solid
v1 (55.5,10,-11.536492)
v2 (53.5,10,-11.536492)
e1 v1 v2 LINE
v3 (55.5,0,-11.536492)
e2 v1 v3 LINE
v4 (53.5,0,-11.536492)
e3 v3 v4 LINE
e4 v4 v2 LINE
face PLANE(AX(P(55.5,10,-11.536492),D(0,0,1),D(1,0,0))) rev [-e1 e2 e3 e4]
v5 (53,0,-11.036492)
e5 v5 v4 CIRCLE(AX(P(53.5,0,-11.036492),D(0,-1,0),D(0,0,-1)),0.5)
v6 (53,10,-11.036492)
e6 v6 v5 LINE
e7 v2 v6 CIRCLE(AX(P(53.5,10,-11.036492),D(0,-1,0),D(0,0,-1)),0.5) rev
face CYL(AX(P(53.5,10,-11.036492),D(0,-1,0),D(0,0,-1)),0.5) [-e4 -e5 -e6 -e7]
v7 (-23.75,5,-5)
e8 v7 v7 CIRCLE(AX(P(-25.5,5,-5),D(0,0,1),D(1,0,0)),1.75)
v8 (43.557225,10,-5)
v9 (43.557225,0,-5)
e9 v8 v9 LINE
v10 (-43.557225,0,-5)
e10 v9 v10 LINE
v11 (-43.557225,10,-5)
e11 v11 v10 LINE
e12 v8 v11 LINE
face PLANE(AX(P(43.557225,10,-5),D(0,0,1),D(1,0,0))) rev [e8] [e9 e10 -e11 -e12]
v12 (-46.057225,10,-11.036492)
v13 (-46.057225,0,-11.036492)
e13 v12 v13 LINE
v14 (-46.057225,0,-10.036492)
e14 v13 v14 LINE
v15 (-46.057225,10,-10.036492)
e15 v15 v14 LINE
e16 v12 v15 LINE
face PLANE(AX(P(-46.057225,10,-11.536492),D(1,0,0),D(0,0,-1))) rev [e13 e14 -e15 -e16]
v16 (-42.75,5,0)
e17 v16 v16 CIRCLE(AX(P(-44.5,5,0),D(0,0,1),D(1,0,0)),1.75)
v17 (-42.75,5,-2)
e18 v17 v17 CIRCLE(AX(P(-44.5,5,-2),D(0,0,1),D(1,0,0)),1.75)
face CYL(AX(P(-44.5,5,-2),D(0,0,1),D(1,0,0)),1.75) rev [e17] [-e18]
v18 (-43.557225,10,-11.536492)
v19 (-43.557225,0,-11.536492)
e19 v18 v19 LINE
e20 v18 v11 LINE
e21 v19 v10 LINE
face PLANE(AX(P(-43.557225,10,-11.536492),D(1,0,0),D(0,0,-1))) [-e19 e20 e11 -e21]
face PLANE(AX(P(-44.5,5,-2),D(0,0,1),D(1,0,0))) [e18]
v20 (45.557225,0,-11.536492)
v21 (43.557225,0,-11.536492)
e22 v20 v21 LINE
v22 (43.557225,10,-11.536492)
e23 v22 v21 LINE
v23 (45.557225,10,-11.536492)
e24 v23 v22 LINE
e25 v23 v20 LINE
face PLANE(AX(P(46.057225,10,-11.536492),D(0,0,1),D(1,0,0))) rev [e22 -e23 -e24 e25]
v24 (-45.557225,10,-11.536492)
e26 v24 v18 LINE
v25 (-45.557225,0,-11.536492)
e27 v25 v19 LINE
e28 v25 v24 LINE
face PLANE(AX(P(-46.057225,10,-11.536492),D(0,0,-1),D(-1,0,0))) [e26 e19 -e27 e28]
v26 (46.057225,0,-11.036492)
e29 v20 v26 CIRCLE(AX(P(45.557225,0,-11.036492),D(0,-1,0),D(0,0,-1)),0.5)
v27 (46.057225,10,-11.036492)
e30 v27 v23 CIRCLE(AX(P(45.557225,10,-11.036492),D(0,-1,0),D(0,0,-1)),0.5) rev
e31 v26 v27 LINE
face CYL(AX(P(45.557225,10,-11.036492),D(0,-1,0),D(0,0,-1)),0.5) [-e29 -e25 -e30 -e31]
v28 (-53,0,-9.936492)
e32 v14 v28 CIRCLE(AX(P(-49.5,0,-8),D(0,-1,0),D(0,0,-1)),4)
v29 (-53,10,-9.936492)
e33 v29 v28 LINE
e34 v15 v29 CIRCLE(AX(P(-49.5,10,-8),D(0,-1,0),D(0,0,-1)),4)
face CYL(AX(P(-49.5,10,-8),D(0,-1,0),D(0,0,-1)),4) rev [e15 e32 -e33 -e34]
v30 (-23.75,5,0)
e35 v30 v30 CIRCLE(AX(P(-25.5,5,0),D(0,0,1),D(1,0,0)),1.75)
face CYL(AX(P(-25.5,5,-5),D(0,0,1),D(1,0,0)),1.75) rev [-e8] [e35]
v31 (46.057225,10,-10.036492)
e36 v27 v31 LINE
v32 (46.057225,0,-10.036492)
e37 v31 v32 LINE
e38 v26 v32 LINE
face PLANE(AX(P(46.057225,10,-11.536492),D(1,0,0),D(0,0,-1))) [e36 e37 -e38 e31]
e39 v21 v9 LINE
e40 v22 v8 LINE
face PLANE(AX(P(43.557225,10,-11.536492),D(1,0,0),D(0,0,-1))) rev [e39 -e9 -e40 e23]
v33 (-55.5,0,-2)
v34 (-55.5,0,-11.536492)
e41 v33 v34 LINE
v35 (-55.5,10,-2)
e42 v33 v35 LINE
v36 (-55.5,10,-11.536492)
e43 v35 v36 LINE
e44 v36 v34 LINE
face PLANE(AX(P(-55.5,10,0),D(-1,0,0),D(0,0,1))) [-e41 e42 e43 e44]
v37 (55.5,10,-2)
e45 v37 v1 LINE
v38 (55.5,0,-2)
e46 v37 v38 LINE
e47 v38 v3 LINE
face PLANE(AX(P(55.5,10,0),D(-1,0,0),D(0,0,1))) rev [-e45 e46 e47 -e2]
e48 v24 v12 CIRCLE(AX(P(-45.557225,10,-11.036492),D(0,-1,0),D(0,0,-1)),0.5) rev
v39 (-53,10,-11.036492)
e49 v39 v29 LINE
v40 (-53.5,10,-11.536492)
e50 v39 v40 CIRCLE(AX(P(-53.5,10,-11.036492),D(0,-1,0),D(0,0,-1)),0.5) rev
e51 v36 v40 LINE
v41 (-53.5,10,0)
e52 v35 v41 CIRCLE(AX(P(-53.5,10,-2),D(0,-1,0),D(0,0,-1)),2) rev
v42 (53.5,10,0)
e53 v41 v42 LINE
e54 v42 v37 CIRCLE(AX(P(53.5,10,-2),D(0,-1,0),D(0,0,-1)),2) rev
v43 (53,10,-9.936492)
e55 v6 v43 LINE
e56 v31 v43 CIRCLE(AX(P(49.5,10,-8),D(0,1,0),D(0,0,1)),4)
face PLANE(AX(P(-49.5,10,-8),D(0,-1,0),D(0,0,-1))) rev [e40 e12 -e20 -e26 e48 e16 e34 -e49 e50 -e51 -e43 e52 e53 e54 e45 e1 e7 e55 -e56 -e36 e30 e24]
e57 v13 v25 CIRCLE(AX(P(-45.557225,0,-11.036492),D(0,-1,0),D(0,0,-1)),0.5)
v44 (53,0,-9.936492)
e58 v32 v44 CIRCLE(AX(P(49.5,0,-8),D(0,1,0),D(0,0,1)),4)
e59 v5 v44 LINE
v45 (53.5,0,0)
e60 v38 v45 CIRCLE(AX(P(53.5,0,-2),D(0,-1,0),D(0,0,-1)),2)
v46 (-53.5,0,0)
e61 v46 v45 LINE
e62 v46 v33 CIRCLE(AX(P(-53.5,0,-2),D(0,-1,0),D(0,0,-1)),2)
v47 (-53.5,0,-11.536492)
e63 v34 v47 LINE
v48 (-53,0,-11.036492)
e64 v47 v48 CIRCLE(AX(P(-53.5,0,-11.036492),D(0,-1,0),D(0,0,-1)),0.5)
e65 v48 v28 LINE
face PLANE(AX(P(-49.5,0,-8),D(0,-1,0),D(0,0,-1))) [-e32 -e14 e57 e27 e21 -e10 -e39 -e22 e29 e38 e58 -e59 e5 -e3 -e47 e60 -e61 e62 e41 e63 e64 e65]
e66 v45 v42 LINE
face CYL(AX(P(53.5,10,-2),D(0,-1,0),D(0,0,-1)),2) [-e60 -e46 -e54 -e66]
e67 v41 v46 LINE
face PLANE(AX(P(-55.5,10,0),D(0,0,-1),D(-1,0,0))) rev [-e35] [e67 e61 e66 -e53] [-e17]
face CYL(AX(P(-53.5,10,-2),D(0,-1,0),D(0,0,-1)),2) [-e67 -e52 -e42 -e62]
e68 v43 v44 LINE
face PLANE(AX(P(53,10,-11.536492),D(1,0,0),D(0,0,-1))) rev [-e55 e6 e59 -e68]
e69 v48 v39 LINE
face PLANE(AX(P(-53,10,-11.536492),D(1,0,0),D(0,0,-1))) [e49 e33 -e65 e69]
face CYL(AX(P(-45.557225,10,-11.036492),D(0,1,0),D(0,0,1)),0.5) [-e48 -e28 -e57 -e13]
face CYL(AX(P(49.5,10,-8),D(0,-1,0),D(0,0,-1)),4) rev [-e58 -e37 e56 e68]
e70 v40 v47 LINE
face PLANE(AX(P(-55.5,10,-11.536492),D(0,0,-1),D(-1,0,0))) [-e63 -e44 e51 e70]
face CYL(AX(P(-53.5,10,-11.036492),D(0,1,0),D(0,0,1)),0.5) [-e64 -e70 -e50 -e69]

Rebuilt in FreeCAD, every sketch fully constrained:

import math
import FreeCAD as App
import Part
import Sketcher

V = App.Vector


def edges_at(feature, points):
    """Names of the edges that pass closest to the given points."""
    edges = feature.Shape.Edges
    near = lambda p: min(range(len(edges)), key=lambda i: edges[i].distToShape(Part.Vertex(*p))[0])
    return sorted({f"Edge{near(p) + 1}" for p in points})

doc = App.newDocument("Part")
body = doc.addObject("PartDesign::Body", "Body")

sketch1 = body.newObject("Sketcher::SketchObject", "Sketch")
sketch1.AttachmentSupport = (doc.getObject("XZ_Plane"), [""])
sketch1.MapMode = "FlatFace"
sketch1.addGeometry([
    Part.LineSegment(V(-55.5, 0, 0), V(55.5, 0, 0)),
    Part.LineSegment(V(55.5, 0, 0), V(55.5, -11.5, 0)),
    Part.LineSegment(V(55.5, -11.5, 0), V(53, -11.5, 0)),
    Part.LineSegment(V(53, -11.5, 0), V(53, -9.9, 0)),
    Part.ArcOfCircle(Part.Circle(V(49.5, -8, 0), V(0, 0, 1), 4), math.radians(-29), math.radians(211)),
    Part.LineSegment(V(46.1, -10, 0), V(46.1, -11.5, 0)),
    Part.LineSegment(V(46.1, -11.5, 0), V(43.6, -11.5, 0)),
    Part.LineSegment(V(43.6, -11.5, 0), V(43.6, -5, 0)),
    Part.LineSegment(V(43.6, -5, 0), V(-43.6, -5, 0)),
    Part.LineSegment(V(-43.6, -5, 0), V(-43.6, -11.5, 0)),
    Part.LineSegment(V(-43.6, -11.5, 0), V(-46.1, -11.5, 0)),
    Part.LineSegment(V(-46.1, -11.5, 0), V(-46.1, -10, 0)),
    Part.ArcOfCircle(Part.Circle(V(-49.5, -8, 0), V(0, 0, 1), 4), math.radians(-31), math.radians(209)),
    Part.LineSegment(V(-53, -9.9, 0), V(-53, -11.5, 0)),
    Part.LineSegment(V(-53, -11.5, 0), V(-55.5, -11.5, 0)),
    Part.LineSegment(V(-55.5, -11.5, 0), V(-55.5, 0, 0)),
], False)
sketch1.addConstraint([
    Sketcher.Constraint("Coincident", 0, 2, 1, 1),
    Sketcher.Constraint("Coincident", 1, 2, 2, 1),
    Sketcher.Constraint("Coincident", 2, 2, 3, 1),
    Sketcher.Constraint("Coincident", 3, 2, 4, 1),
    Sketcher.Constraint("Coincident", 4, 2, 5, 1),
    Sketcher.Constraint("Coincident", 5, 2, 6, 1),
    Sketcher.Constraint("Coincident", 6, 2, 7, 1),
    Sketcher.Constraint("Coincident", 7, 2, 8, 1),
    Sketcher.Constraint("Coincident", 8, 2, 9, 1),
    Sketcher.Constraint("Coincident", 9, 2, 10, 1),
    Sketcher.Constraint("Coincident", 10, 2, 11, 1),
    Sketcher.Constraint("Coincident", 11, 2, 12, 1),
    Sketcher.Constraint("Coincident", 12, 2, 13, 1),
    Sketcher.Constraint("Coincident", 13, 2, 14, 1),
    Sketcher.Constraint("Coincident", 14, 2, 15, 1),
    Sketcher.Constraint("Coincident", 15, 2, 0, 1),
    Sketcher.Constraint("Horizontal", 0),
    Sketcher.Constraint("Vertical", 1),
    Sketcher.Constraint("Horizontal", 2),
    Sketcher.Constraint("Vertical", 3),
    Sketcher.Constraint("Vertical", 5),
    Sketcher.Constraint("Horizontal", 6),
    Sketcher.Constraint("Vertical", 7),
    Sketcher.Constraint("Horizontal", 8),
    Sketcher.Constraint("Vertical", 9),
    Sketcher.Constraint("Horizontal", 10),
    Sketcher.Constraint("Vertical", 11),
    Sketcher.Constraint("Vertical", 13),
    Sketcher.Constraint("Horizontal", 14),
    Sketcher.Constraint("Vertical", 15),
    Sketcher.Constraint("Equal", 4, 12),
    Sketcher.Constraint("Symmetric", 0, 2, 15, 2, -1, 1),
    Sketcher.Constraint("Symmetric", 4, 3, 12, 3, -2),
    Sketcher.Constraint("Symmetric", 6, 2, 9, 2, -2),
    Sketcher.Constraint("Symmetric", 2, 2, 13, 2, -2),
    Sketcher.Constraint("Horizontal", 2, 2, 5, 2),
    Sketcher.Constraint("Horizontal", 4, 2, 11, 2),
    Sketcher.Constraint("Equal", 2, 6),
    Sketcher.Constraint("Radius", 4, 4.0),
    Sketcher.Constraint("DistanceX", 0, 1, 0, 2, 111.0),
    Sketcher.Constraint("DistanceX", 2, 2, 2, 1, 2.5),
    Sketcher.Constraint("DistanceY", 3, 1, 3, 2, 1.6),
    Sketcher.Constraint("DistanceY", 5, 2, 5, 1, 1.5),
    Sketcher.Constraint("DistanceY", 4, 3, -1, 1, 8.0),
    Sketcher.Constraint("DistanceY", 7, 2, -1, 1, 5.0),
    Sketcher.Constraint("DistanceX", 12, 3, 4, 3, 99.0),
])
pad1 = body.newObject("PartDesign::Pad", "Pad")
pad1.Profile = sketch1
pad1.Length = 10
pad1.Reversed = True
doc.recompute()

fillet = body.newObject("PartDesign::Fillet", "Fillet")
fillet.Base = (pad1, edges_at(pad1, [(55.5, 5, 0)]))
fillet.Radius = 2
doc.recompute()

fillet2 = body.newObject("PartDesign::Fillet", "Fillet001")
fillet2.Base = (fillet, edges_at(fillet, [(-55.5, 5, 0)]))
fillet2.Radius = 2
doc.recompute()

fillet3 = body.newObject("PartDesign::Fillet", "Fillet002")
fillet3.Base = (fillet2, edges_at(fillet2, [(46.057, 5, -11.536)]))
fillet3.Radius = 0.5
doc.recompute()

fillet4 = body.newObject("PartDesign::Fillet", "Fillet003")
fillet4.Base = (fillet3, edges_at(fillet3, [(53, 5, -11.536)]))
fillet4.Radius = 0.5
doc.recompute()

fillet5 = body.newObject("PartDesign::Fillet", "Fillet004")
fillet5.Base = (fillet4, edges_at(fillet4, [(-53, 5, -11.536)]))
fillet5.Radius = 0.5
doc.recompute()

fillet6 = body.newObject("PartDesign::Fillet", "Fillet005")
fillet6.Base = (fillet5, edges_at(fillet5, [(-46.057, 5, -11.536)]))
fillet6.Radius = 0.5

sketch2 = body.newObject("Sketcher::SketchObject", "Sketch001")
sketch2.AttachmentSupport = (doc.getObject("XY_Plane"), [""])
sketch2.MapMode = "FlatFace"
sketch2.addGeometry(Part.Circle(V(-25.5, 5, 0), V(0, 0, 1), 1.8), False)
sketch2.addConstraint([
    Sketcher.Constraint("Diameter", 0, 3.5),
    Sketcher.Constraint("DistanceY", -1, 1, 0, 3, 5.0),
    Sketcher.Constraint("DistanceX", 0, 3, -1, 1, 25.5),
])
pocket1 = body.newObject("PartDesign::Pocket", "Pocket")
pocket1.Profile = sketch2
pocket1.Length = 5

sketch3 = body.newObject("Sketcher::SketchObject", "Sketch002")
sketch3.AttachmentSupport = (doc.getObject("XY_Plane"), [""])
sketch3.MapMode = "FlatFace"
sketch3.addGeometry(Part.Circle(V(-44.5, 5, 0), V(0, 0, 1), 1.8), False)
sketch3.addConstraint([
    Sketcher.Constraint("Diameter", 0, 3.5),
    Sketcher.Constraint("DistanceY", -1, 1, 0, 3, 5.0),
    Sketcher.Constraint("DistanceX", 0, 3, -1, 1, 44.5),
])
pocket2 = body.newObject("PartDesign::Pocket", "Pocket001")
pocket2.Profile = sketch3
pocket2.Length = 2

doc.recompute()
